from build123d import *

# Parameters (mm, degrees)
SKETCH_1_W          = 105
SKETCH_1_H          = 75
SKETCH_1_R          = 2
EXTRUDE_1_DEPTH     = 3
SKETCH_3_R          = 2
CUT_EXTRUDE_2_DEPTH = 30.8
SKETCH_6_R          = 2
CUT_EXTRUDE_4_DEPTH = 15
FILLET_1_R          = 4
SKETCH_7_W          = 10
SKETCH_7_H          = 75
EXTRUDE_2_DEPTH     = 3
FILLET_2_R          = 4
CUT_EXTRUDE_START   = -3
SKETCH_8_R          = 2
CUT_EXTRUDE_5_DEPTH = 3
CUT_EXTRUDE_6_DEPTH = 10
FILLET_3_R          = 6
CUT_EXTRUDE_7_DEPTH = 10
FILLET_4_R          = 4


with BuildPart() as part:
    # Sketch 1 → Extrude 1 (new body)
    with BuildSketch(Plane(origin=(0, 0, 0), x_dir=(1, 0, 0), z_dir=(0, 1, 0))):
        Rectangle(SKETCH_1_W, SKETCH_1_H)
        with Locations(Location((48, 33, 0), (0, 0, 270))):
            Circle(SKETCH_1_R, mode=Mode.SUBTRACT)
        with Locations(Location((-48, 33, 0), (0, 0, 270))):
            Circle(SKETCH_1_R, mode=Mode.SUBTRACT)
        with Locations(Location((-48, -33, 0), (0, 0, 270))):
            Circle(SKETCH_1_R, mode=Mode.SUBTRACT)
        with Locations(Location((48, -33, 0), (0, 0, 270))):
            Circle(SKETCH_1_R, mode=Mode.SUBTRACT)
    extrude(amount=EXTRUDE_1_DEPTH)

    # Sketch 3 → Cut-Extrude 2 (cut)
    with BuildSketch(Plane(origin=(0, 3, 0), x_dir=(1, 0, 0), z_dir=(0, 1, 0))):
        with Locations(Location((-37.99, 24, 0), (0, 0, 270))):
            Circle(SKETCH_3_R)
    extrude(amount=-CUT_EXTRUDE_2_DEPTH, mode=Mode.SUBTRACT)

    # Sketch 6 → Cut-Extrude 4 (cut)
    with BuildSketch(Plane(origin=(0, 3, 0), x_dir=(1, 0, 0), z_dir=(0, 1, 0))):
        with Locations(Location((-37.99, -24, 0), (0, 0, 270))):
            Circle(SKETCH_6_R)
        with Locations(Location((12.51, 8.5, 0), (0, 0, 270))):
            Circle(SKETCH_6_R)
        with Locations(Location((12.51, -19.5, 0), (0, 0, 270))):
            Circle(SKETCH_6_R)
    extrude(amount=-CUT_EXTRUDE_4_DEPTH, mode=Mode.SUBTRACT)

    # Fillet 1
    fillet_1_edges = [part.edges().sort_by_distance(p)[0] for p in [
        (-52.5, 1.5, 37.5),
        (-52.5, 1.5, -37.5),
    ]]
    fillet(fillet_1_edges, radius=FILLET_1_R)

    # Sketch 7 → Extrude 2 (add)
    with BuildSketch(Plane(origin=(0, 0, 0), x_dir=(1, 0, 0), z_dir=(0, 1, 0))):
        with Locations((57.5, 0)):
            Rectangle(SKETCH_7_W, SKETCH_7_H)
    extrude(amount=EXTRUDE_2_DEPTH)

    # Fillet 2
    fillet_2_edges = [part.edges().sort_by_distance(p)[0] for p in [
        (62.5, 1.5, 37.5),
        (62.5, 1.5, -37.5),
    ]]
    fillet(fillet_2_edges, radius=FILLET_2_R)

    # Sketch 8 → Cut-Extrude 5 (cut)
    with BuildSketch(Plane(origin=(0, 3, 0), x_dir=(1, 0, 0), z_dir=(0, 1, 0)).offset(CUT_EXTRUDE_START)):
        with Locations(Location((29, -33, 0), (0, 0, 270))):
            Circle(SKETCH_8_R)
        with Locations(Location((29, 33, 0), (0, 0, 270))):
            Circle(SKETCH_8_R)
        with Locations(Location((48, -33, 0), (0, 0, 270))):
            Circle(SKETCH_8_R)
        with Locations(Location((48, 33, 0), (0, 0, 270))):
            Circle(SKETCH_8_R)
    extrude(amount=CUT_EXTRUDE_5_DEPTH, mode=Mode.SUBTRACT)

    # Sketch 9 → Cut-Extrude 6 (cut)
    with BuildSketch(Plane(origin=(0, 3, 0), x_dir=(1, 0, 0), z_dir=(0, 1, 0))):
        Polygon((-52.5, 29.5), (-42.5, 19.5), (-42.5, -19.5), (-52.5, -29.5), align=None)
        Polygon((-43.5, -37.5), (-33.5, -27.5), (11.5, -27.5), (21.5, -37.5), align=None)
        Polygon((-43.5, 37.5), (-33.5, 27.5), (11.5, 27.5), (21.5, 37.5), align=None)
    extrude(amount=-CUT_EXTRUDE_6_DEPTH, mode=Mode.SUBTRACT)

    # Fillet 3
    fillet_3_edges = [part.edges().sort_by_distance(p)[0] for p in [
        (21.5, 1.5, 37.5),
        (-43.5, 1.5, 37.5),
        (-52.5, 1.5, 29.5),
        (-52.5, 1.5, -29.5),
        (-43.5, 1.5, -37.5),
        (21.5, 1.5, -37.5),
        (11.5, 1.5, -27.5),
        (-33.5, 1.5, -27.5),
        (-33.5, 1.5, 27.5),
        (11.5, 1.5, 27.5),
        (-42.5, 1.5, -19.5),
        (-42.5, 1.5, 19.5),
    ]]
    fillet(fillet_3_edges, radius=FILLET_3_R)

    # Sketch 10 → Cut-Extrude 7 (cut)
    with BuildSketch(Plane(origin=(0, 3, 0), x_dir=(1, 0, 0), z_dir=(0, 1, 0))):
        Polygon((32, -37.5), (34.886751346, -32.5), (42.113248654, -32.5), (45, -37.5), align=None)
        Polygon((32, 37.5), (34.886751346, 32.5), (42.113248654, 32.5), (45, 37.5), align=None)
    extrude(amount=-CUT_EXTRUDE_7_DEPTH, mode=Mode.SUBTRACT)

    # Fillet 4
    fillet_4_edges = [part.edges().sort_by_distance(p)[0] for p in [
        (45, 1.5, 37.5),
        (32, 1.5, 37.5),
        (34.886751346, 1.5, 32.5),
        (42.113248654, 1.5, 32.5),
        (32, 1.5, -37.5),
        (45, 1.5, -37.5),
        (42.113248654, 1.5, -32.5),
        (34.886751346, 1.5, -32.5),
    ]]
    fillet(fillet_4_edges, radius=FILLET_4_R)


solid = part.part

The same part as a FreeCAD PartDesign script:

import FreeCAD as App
import Part
import Sketcher
from FreeCAD import Vector
Q = App.Units.Quantity


def edges_at(feature, points):
    """Names of the edges that pass closest to the given points."""
    edges = feature.Shape.Edges
    near = lambda p: min(range(len(edges)), key=lambda i: edges[i].distToShape(Part.Vertex(*p))[0])
    return sorted({f"Edge{near(p) + 1}" for p in points})


def add_polygon(sketch, points):
    """Adds a closed chain of lines whose ends are joined by coincident constraints."""
    first, n = sketch.GeometryCount, len(points)
    for a, b in zip(points, points[1:] + points[:1]):
        sketch.addGeometry(Part.LineSegment(App.Vector(*a, 0), App.Vector(*b, 0)), False)
    for i in range(n):
        sketch.addConstraint(Sketcher.Constraint("Coincident", first + i, 2, first + (i + 1) % n, 1))

doc = App.newDocument("Part")
params = doc.addObject("Spreadsheet::Sheet", "Params")
for row, (alias, value) in enumerate([
    ("sketch1_diameter", "4 mm"),
    ("sketch1_width", "105 mm"),
    ("sketch1_height", "75 mm"),
    ("pad1_length", "3 mm"),
    ("sketch2_diameter", "4 mm"),
    ("pocket1_length", "30.8 mm"),
    ("sketch3_diameter", "4 mm"),
    ("pocket2_length", "15 mm"),
    ("fillet_radius", "4 mm"),
    ("sketch4_width", "10 mm"),
    ("sketch4_height", "75 mm"),
    ("pad2_length", "3 mm"),
    ("fillet2_radius", "4 mm"),
    ("sketch5_diameter", "4 mm"),
    ("pocket3_length", "3 mm"),
    ("sketch6_width", "65 mm"),
    ("sketch6_width2", "45 mm"),
    ("sketch6_height", "59 mm"),
    ("pocket4_length", "10 mm"),
    ("fillet3_radius", "6 mm"),
    ("sketch7_width", "13 mm"),
    ("pocket5_length", "10 mm"),
    ("fillet4_radius", "4 mm"),
], start=1):
    params.set(f"A{row}", alias)
    params.set(f"B{row}", "=" + value)
    params.setAlias(f"B{row}", alias)

body = doc.addObject("PartDesign::Body", "Body")

sketch1 = doc.addObject("Sketcher::SketchObject", "Sketch")
body.addObject(sketch1)
sketch1.AttachmentSupport = (doc.XZ_Plane, [""])
sketch1.MapMode = "FlatFace"
add_polygon(sketch1, [(-52.5, -37.5), (-52.5, 37.5), (52.5, 37.5), (52.5, -37.5)])
sketch1.addGeometry(Part.Circle(Vector(-48, 33, 0), Vector(0, 0, 1), 2), False)
sketch1.addGeometry(Part.Circle(Vector(48, 33, 0), Vector(0, 0, 1), 2), False)
sketch1.addGeometry(Part.Circle(Vector(-48, -33, 0), Vector(0, 0, 1), 2), False)
sketch1.addGeometry(Part.Circle(Vector(48, -33, 0), Vector(0, 0, 1), 2), False)
sketch1.addConstraint([
    Sketcher.Constraint("Vertical", 0),
    Sketcher.Constraint("Horizontal", 1),
    Sketcher.Constraint("Vertical", 2),
    Sketcher.Constraint("Horizontal", 3),
    Sketcher.Constraint("Equal", 4, 5),
    Sketcher.Constraint("Equal", 5, 6),
    Sketcher.Constraint("Equal", 6, 7),
    Sketcher.Constraint("Symmetric", 5, 3, 6, 3, -1, 1),
    Sketcher.Constraint("Symmetric", 4, 3, 7, 3, -1, 1),
    Sketcher.Constraint("Symmetric", 0, 2, 2, 2, -1, 1),
    Sketcher.Constraint("Symmetric", 4, 3, 5, 3, -2),
    Sketcher.Constraint("Diameter", 4, Q("4 mm")),
    Sketcher.Constraint("DistanceX", 1, 1, 1, 2, Q("105 mm")),
    Sketcher.Constraint("DistanceY", 0, 1, 0, 2, Q("75 mm")),
    Sketcher.Constraint("DistanceX", 4, 3, -1, 1, Q("48 mm")),
    Sketcher.Constraint("DistanceY", -1, 1, 4, 3, Q("33 mm")),
])
sketch1.setExpression("Constraints[15]", "Params.sketch1_diameter")
sketch1.setExpression("Constraints[16]", "Params.sketch1_width")
sketch1.setExpression("Constraints[17]", "Params.sketch1_height")
pad1 = doc.addObject("PartDesign::Pad", "Pad")
body.addObject(pad1)
pad1.Profile = sketch1
pad1.setExpression("Length", "Params.pad1_length")
pad1.Reversed = True

sketch2 = doc.addObject("Sketcher::SketchObject", "Sketch001")
body.addObject(sketch2)
sketch2.AttachmentSupport = (doc.XZ_Plane, [""])
sketch2.MapMode = "FlatFace"
sketch2.AttachmentOffset = App.Placement(Vector(0, 0, -3), App.Rotation())
sketch2.addGeometry(Part.Circle(Vector(-38, -24, 0), Vector(0, 0, 1), 2), False)
sketch2.addConstraint([
    Sketcher.Constraint("Diameter", 0, Q("4 mm")),
    Sketcher.Constraint("DistanceY", 0, 3, -1, 1, Q("24 mm")),
    Sketcher.Constraint("DistanceX", 0, 3, -1, 1, Q("37.99 mm")),
])
sketch2.setExpression("Constraints[0]", "Params.sketch2_diameter")
pocket1 = doc.addObject("PartDesign::Pocket", "Pocket")
body.addObject(pocket1)
pocket1.Profile = sketch2
pocket1.setExpression("Length", "Params.pocket1_length")
pocket1.Reversed = True

sketch3 = doc.addObject("Sketcher::SketchObject", "Sketch002")
body.addObject(sketch3)
sketch3.AttachmentSupport = (doc.XZ_Plane, [""])
sketch3.MapMode = "FlatFace"
sketch3.AttachmentOffset = App.Placement(Vector(0, 0, -3), App.Rotation())
sketch3.addGeometry([
    Part.Circle(Vector(-38, 24, 0), Vector(0, 0, 1), 2),
    Part.Circle(Vector(12.5, -8.5, 0), Vector(0, 0, 1), 2),
    Part.Circle(Vector(12.5, 19.5, 0), Vector(0, 0, 1), 2),
], False)
sketch3.addConstraint([
    Sketcher.Constraint("Equal", 0, 1),
    Sketcher.Constraint("Equal", 1, 2),
    Sketcher.Constraint("Vertical", 1, 3, 2, 3),
    Sketcher.Constraint("Diameter", 0, Q("4 mm")),
    Sketcher.Constraint("DistanceY", -1, 1, 0, 3, Q("24 mm")),
    Sketcher.Constraint("DistanceY", 1, 3, 2, 3, Q("28 mm")),
    Sketcher.Constraint("DistanceY", 1, 3, -1, 1, Q("8.5 mm")),
    Sketcher.Constraint("DistanceX", 0, 3, 1, 3, Q("50.5 mm")),
    Sketcher.Constraint("DistanceX", 0, 3, -1, 1, Q("37.99 mm")),
])
sketch3.setExpression("Constraints[3]", "Params.sketch3_diameter")
pocket2 = doc.addObject("PartDesign::Pocket", "Pocket001")
body.addObject(pocket2)
pocket2.Profile = sketch3
pocket2.setExpression("Length", "Params.pocket2_length")
pocket2.Reversed = True
doc.recompute()

fillet = doc.addObject("PartDesign::Fillet", "Fillet")
body.addObject(fillet)
fillet.Base = (pocket2, edges_at(pocket2, [(-52.5, 1.5, 37.5), (-52.5, 1.5, -37.5)]))
fillet.setExpression("Radius", "Params.fillet_radius")

sketch4 = doc.addObject("Sketcher::SketchObject", "Sketch003")
body.addObject(sketch4)
sketch4.AttachmentSupport = (doc.XZ_Plane, [""])
sketch4.MapMode = "FlatFace"
add_polygon(sketch4, [(52, -38), (52, 38), (62, 38), (62, -38)])
sketch4.addConstraint([
    Sketcher.Constraint("Vertical", 0),
    Sketcher.Constraint("Horizontal", 1),
    Sketcher.Constraint("Vertical", 2),
    Sketcher.Constraint("Horizontal", 3),
    Sketcher.Constraint("DistanceX", 1, 1, 1, 2, Q("10 mm")),
    Sketcher.Constraint("DistanceY", 0, 1, 0, 2, Q("75 mm")),
    Sketcher.Constraint("DistanceX", -1, 1, 0, 2, Q("52.5 mm")),
    Sketcher.Constraint("DistanceY", -1, 1, 0, 2, Q("37.5 mm")),
])
sketch4.setExpression("Constraints[8]", "Params.sketch4_width")
sketch4.setExpression("Constraints[9]", "Params.sketch4_height")
pad2 = doc.addObject("PartDesign::Pad", "Pad001")
body.addObject(pad2)
pad2.Profile = sketch4
pad2.setExpression("Length", "Params.pad2_length")
pad2.Reversed = True
doc.recompute()

fillet2 = doc.addObject("PartDesign::Fillet", "Fillet001")
body.addObject(fillet2)
fillet2.Base = (pad2, edges_at(pad2, [(62.5, 1.5, 37.5), (62.5, 1.5, -37.5)]))
fillet2.setExpression("Radius", "Params.fillet2_radius")

sketch5 = doc.addObject("Sketcher::SketchObject", "Sketch004")
body.addObject(sketch5)
sketch5.AttachmentSupport = (doc.XZ_Plane, [""])
sketch5.MapMode = "FlatFace"
sketch5.addGeometry([
    Part.Circle(Vector(29, 33, 0), Vector(0, 0, 1), 2),
    Part.Circle(Vector(29, -33, 0), Vector(0, 0, 1), 2),
    Part.Circle(Vector(48, 33, 0), Vector(0, 0, 1), 2),
    Part.Circle(Vector(48, -33, 0), Vector(0, 0, 1), 2),
], False)
sketch5.addConstraint([
    Sketcher.Constraint("Equal", 0, 1),
    Sketcher.Constraint("Equal", 1, 2),
    Sketcher.Constraint("Equal", 2, 3),
    Sketcher.Constraint("Symmetric", 0, 3, 1, 3, -1),
    Sketcher.Constraint("Symmetric", 2, 3, 3, 3, -1),
    Sketcher.Constraint("Horizontal", 0, 3, 2, 3),
    Sketcher.Constraint("Diameter", 0, Q("4 mm")),
    Sketcher.Constraint("DistanceX", -1, 1, 0, 3, Q("29 mm")),
    Sketcher.Constraint("DistanceY", -1, 1, 0, 3, Q("33 mm")),
    Sketcher.Constraint("DistanceX", -1, 1, 2, 3, Q("48 mm")),
])
sketch5.setExpression("Constraints[6]", "Params.sketch5_diameter")
pocket3 = doc.addObject("PartDesign::Pocket", "Pocket002")
body.addObject(pocket3)
pocket3.Profile = sketch5
pocket3.setExpression("Length", "Params.pocket3_length")

sketch6 = doc.addObject("Sketcher::SketchObject", "Sketch005")
body.addObject(sketch6)
sketch6.AttachmentSupport = (doc.XZ_Plane, [""])
sketch6.MapMode = "FlatFace"
sketch6.AttachmentOffset = App.Placement(Vector(0, 0, -3), App.Rotation())
add_polygon(sketch6, [(-42, -20), (-52, -30), (-52, 30), (-42, 20)])
add_polygon(sketch6, [(-34, 28), (-44, 38), (22, 38), (12, 28)])
add_polygon(sketch6, [(-44, -38), (-34, -28), (12, -28), (22, -38)])
sketch6.addConstraint([
    Sketcher.Constraint("Vertical", 1),
    Sketcher.Constraint("Vertical", 3),
    Sketcher.Constraint("Horizontal", 5),
    Sketcher.Constraint("Horizontal", 7),
    Sketcher.Constraint("Horizontal", 9),
    Sketcher.Constraint("Horizontal", 11),
    Sketcher.Constraint("Symmetric", 7, 2, 8, 2, -1),
    Sketcher.Constraint("Symmetric", 5, 2, 10, 2, -1),
    Sketcher.Constraint("Perpendicular", 0, 2),
    Sketcher.Constraint("Parallel", 2, 4),
    Sketcher.Constraint("Perpendicular", 4, 6),
    Sketcher.Constraint("Parallel", 6, 8),
    Sketcher.Constraint("Perpendicular", 8, 10),
    Sketcher.Constraint("Vertical", 6, 2, 9, 2),
    Sketcher.Constraint("Equal", 2, 4),
    Sketcher.Constraint("DistanceX", 5, 1, 5, 2, Q("65 mm")),
    Sketcher.Constraint("DistanceX", 7, 2, 7, 1, Q("45 mm")),
    Sketcher.Constraint("DistanceY", 1, 1, 1, 2, Q("59 mm")),
    Sketcher.Constraint("DistanceX", 1, 2, 4, 2, Q("9 mm")),
    Sketcher.Constraint("DistanceY", 1, 2, 4, 2, Q("8 mm")),
    Sketcher.Constraint("DistanceY", 8, 2, 3, 2, Q("8 mm")),
    Sketcher.Constraint("DistanceX", 0, 2, -1, 1, Q("52.5 mm")),
])
sketch6.setExpression("Constraints[27]", "Params.sketch6_width")
sketch6.setExpression("Constraints[28]", "Params.sketch6_width2")
sketch6.setExpression("Constraints[29]", "Params.sketch6_height")
pocket4 = doc.addObject("PartDesign::Pocket", "Pocket003")
body.addObject(pocket4)
pocket4.Profile = sketch6
pocket4.setExpression("Length", "Params.pocket4_length")
pocket4.Reversed = True
doc.recompute()

fillet3 = doc.addObject("PartDesign::Fillet", "Fillet002")
body.addObject(fillet3)
fillet3.Base = (pocket4, edges_at(pocket4, [
    (21.5, 1.5, 37.5),
    (-43.5, 1.5, 37.5),
    (-52.5, 1.5, 29.5),
    (-52.5, 1.5, -29.5),
    (-43.5, 1.5, -37.5),
    (21.5, 1.5, -37.5),
    (11.5, 1.5, -27.5),
    (-33.5, 1.5, -27.5),
    (-33.5, 1.5, 27.5),
    (11.5, 1.5, 27.5),
    (-42.5, 1.5, -19.5),
    (-42.5, 1.5, 19.5),
]))
fillet3.setExpression("Radius", "Params.fillet3_radius")

sketch7 = doc.addObject("Sketcher::SketchObject", "Sketch006")
body.addObject(sketch7)
sketch7.AttachmentSupport = (doc.XZ_Plane, [""])
sketch7.MapMode = "FlatFace"
sketch7.AttachmentOffset = App.Placement(Vector(0, 0, -3), App.Rotation())
add_polygon(sketch7, [(35, 32), (32, 38), (45, 38), (42, 32)])
add_polygon(sketch7, [(32, -38), (35, -32), (42, -32), (45, -38)])
sketch7.addConstraint([
    Sketcher.Constraint("Horizontal", 1),
    Sketcher.Constraint("Horizontal", 3),
    Sketcher.Constraint("Horizontal", 5),
    Sketcher.Constraint("Horizontal", 7),
    Sketcher.Constraint("Symmetric", 3, 2, 4, 2, -1),
    Sketcher.Constraint("Symmetric", 1, 2, 6, 2, -1),
    Sketcher.Constraint("Parallel", 2, 4),
    Sketcher.Constraint("Parallel", 0, 6),
    Sketcher.Constraint("Vertical", 2, 2, 5, 2),
    Sketcher.Constraint("DistanceX", 1, 1, 1, 2, Q("13 mm")),
    Sketcher.Constraint("Angle", 0, Q("120 deg")),
    Sketcher.Constraint("DistanceX", -1, 1, 0, 2, Q("32 mm")),
    Sketcher.Constraint("DistanceY", 2, 2, 1, 2, Q("5 mm")),
    Sketcher.Constraint("DistanceY", 4, 2, 3, 2, Q("65 mm")),
])
sketch7.setExpression("Constraints[17]", "Params.sketch7_width")
pocket5 = doc.addObject("PartDesign::Pocket", "Pocket004")
body.addObject(pocket5)
pocket5.Profile = sketch7
pocket5.setExpression("Length", "Params.pocket5_length")
pocket5.Reversed = True
doc.recompute()

fillet4 = doc.addObject("PartDesign::Fillet", "Fillet003")
body.addObject(fillet4)
fillet4.Base = (pocket5, edges_at(pocket5, [
    (45, 1.5, 37.5),
    (32, 1.5, 37.5),
    (34.887, 1.5, 32.5),
    (42.113, 1.5, 32.5),
    (32, 1.5, -37.5),
    (45, 1.5, -37.5),
    (42.113, 1.5, -32.5),
    (34.887, 1.5, -32.5),
]))
fillet4.setExpression("Radius", "Params.fillet4_radius")

doc.recompute()
